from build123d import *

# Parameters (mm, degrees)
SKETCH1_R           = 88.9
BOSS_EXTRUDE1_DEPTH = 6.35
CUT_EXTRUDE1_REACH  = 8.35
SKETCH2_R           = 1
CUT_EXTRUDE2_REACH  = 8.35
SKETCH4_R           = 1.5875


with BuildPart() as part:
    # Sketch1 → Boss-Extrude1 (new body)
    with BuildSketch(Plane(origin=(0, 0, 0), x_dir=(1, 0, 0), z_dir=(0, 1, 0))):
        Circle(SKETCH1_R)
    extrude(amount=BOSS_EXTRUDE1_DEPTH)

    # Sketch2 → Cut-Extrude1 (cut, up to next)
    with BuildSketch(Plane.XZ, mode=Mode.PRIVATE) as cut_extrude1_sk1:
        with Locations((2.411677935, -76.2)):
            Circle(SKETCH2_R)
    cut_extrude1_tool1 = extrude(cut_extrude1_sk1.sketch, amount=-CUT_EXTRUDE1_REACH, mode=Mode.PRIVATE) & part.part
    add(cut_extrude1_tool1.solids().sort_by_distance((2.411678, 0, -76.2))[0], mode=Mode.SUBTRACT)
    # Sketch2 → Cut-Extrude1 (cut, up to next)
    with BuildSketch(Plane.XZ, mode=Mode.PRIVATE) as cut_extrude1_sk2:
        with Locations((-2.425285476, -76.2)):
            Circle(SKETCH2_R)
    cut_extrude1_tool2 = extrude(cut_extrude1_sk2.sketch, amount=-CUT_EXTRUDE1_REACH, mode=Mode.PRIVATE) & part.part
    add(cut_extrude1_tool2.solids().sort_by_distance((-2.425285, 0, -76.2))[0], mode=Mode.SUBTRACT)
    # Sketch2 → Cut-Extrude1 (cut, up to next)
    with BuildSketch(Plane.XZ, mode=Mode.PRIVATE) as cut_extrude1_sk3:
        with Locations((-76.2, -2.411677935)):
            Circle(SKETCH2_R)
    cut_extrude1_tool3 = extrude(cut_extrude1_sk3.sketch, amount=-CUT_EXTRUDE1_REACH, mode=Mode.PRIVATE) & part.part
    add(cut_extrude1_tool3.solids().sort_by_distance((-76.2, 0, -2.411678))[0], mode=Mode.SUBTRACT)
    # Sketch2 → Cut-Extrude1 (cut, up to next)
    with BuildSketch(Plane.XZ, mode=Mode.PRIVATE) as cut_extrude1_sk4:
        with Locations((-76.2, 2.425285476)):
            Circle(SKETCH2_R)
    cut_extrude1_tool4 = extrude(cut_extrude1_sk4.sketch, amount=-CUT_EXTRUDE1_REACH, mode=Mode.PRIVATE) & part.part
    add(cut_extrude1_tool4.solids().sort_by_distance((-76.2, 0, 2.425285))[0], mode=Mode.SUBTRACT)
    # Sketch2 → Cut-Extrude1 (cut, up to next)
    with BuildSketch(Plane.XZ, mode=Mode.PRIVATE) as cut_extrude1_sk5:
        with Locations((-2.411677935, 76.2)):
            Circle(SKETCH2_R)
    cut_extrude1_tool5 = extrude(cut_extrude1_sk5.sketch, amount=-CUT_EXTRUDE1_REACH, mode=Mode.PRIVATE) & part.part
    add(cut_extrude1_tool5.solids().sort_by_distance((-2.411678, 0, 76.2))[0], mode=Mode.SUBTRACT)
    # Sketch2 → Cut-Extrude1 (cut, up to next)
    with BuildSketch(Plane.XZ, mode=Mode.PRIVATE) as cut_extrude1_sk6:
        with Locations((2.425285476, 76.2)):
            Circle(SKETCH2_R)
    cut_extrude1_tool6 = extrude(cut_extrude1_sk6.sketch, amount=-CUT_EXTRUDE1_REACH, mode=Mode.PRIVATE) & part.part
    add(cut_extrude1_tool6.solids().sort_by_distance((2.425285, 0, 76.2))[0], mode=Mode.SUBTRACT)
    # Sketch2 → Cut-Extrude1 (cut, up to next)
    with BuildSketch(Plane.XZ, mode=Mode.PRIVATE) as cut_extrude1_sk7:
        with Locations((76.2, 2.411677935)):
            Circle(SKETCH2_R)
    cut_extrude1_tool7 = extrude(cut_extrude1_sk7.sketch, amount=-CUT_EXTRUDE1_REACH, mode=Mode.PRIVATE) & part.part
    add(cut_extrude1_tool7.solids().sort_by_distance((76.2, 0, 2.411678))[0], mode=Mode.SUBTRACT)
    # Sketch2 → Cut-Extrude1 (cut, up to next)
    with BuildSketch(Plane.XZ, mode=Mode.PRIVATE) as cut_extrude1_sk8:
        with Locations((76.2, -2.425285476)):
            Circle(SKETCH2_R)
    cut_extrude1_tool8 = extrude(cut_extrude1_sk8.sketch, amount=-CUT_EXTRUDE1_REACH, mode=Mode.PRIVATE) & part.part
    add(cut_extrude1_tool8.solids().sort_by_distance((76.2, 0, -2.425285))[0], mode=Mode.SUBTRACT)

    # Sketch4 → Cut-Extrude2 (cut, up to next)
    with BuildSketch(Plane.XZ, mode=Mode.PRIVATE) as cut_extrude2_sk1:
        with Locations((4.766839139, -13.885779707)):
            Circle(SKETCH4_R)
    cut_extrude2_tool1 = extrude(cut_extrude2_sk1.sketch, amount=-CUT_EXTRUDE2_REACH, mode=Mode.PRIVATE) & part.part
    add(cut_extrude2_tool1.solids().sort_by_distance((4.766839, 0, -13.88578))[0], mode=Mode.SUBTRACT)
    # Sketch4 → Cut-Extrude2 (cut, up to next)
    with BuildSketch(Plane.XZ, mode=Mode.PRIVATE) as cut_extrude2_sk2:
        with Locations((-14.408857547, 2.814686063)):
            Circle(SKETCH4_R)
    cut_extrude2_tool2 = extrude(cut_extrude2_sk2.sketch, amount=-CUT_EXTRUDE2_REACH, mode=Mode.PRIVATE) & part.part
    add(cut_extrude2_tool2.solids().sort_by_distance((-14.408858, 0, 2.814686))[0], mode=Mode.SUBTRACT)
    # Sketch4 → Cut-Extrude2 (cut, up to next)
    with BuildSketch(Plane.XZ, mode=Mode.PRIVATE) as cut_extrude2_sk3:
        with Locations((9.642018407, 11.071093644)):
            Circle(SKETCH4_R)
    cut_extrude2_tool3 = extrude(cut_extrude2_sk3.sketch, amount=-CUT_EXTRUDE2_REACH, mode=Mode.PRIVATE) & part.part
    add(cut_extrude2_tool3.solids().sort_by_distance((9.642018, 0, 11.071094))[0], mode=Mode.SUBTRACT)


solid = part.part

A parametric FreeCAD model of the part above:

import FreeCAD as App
import Part
import Sketcher

V = App.Vector
Q = App.Units.Quantity

doc = App.newDocument("Part")
body = doc.addObject("PartDesign::Body", "Body")

# Sketch on XZ plane
sketch1 = body.newObject("Sketcher::SketchObject", "Sketch")
sketch1.AttachmentSupport = (doc.getObject("XZ_Plane"), [""])
sketch1.MapMode = "FlatFace"
sketch1.addGeometry(Part.Circle(V(0, 0, 0), V(0, 0, 1), 89), False)
sketch1.addConstraint(Sketcher.Constraint("Coincident", 0, 3, -1, 1))
sketch1.addConstraint(Sketcher.Constraint("Diameter", 0, Q("7 in")))
pad1 = body.newObject("PartDesign::Pad", "Pad")
pad1.Profile = sketch1
pad1.Length = Q("0.25 in")
pad1.Reversed = True

# Sketch on XZ plane
sketch2 = body.newObject("Sketcher::SketchObject", "Sketch001")
sketch2.AttachmentSupport = (doc.getObject("XZ_Plane"), [""])
sketch2.MapMode = "FlatFace"
sketch2.addGeometry(Part.Circle(V(2.4, -76.2, 0), V(0, 0, 1), 1), False)
sketch2.addConstraint(Sketcher.Constraint("DistanceY", 0, 3, -1, 1, Q("3 in")))
sketch2.addConstraint(Sketcher.Constraint("Diameter", 0, Q("2 mm")))
sketch2.addConstraint(Sketcher.Constraint("DistanceX", -1, 1, 0, 3, Q("2.411678 mm")))
pocket1 = body.newObject("PartDesign::Pocket", "Pocket")
pocket1.Profile = sketch2
pocket1.Type = "UpToFirst"

# Sketch on XZ plane
sketch3 = body.newObject("Sketcher::SketchObject", "Sketch002")
sketch3.AttachmentSupport = (doc.getObject("XZ_Plane"), [""])
sketch3.MapMode = "FlatFace"
sketch3.addGeometry(Part.Circle(V(-2.4, -76.2, 0), V(0, 0, 1), 1), False)
sketch3.addConstraint(Sketcher.Constraint("DistanceY", 0, 3, -1, 1, Q("3 in")))
sketch3.addConstraint(Sketcher.Constraint("Diameter", 0, Q("2 mm")))
sketch3.addConstraint(Sketcher.Constraint("DistanceX", 0, 3, -1, 1, Q("2.425285 mm")))
pocket2 = body.newObject("PartDesign::Pocket", "Pocket001")
pocket2.Profile = sketch3
pocket2.Type = "UpToFirst"

# Sketch on XZ plane
sketch4 = body.newObject("Sketcher::SketchObject", "Sketch003")
sketch4.AttachmentSupport = (doc.getObject("XZ_Plane"), [""])
sketch4.MapMode = "FlatFace"
sketch4.addGeometry(Part.Circle(V(-76.2, -2.4, 0), V(0, 0, 1), 1), False)
sketch4.addConstraint(Sketcher.Constraint("DistanceX", 0, 3, -1, 1, Q("3 in")))
sketch4.addConstraint(Sketcher.Constraint("Diameter", 0, Q("2 mm")))
sketch4.addConstraint(Sketcher.Constraint("DistanceY", 0, 3, -1, 1, Q("2.411678 mm")))
pocket3 = body.newObject("PartDesign::Pocket", "Pocket002")
pocket3.Profile = sketch4
pocket3.Type = "UpToFirst"

# Sketch on XZ plane
sketch5 = body.newObject("Sketcher::SketchObject", "Sketch004")
sketch5.AttachmentSupport = (doc.getObject("XZ_Plane"), [""])
sketch5.MapMode = "FlatFace"
sketch5.addGeometry(Part.Circle(V(-76.2, 2.4, 0), V(0, 0, 1), 1), False)
sketch5.addConstraint(Sketcher.Constraint("DistanceX", 0, 3, -1, 1, Q("3 in")))
sketch5.addConstraint(Sketcher.Constraint("Diameter", 0, Q("2 mm")))
sketch5.addConstraint(Sketcher.Constraint("DistanceY", -1, 1, 0, 3, Q("2.425285 mm")))
pocket4 = body.newObject("PartDesign::Pocket", "Pocket003")
pocket4.Profile = sketch5
pocket4.Type = "UpToFirst"

# Sketch on XZ plane
sketch6 = body.newObject("Sketcher::SketchObject", "Sketch005")
sketch6.AttachmentSupport = (doc.getObject("XZ_Plane"), [""])
sketch6.MapMode = "FlatFace"
sketch6.addGeometry(Part.Circle(V(-2.4, 76.2, 0), V(0, 0, 1), 1), False)
sketch6.addConstraint(Sketcher.Constraint("DistanceY", -1, 1, 0, 3, Q("3 in")))
sketch6.addConstraint(Sketcher.Constraint("Diameter", 0, Q("2 mm")))
sketch6.addConstraint(Sketcher.Constraint("DistanceX", 0, 3, -1, 1, Q("2.411678 mm")))
pocket5 = body.newObject("PartDesign::Pocket", "Pocket004")
pocket5.Profile = sketch6
pocket5.Type = "UpToFirst"

# Sketch on XZ plane
sketch7 = body.newObject("Sketcher::SketchObject", "Sketch006")
sketch7.AttachmentSupport = (doc.getObject("XZ_Plane"), [""])
sketch7.MapMode = "FlatFace"
sketch7.addGeometry(Part.Circle(V(2.4, 76.2, 0), V(0, 0, 1), 1), False)
sketch7.addConstraint(Sketcher.Constraint("DistanceY", -1, 1, 0, 3, Q("3 in")))
sketch7.addConstraint(Sketcher.Constraint("Diameter", 0, Q("2 mm")))
sketch7.addConstraint(Sketcher.Constraint("DistanceX", -1, 1, 0, 3, Q("2.425285 mm")))
pocket6 = body.newObject("PartDesign::Pocket", "Pocket005")
pocket6.Profile = sketch7
pocket6.Type = "UpToFirst"

# Sketch on XZ plane
sketch8 = body.newObject("Sketcher::SketchObject", "Sketch007")
sketch8.AttachmentSupport = (doc.getObject("XZ_Plane"), [""])
sketch8.MapMode = "FlatFace"
sketch8.addGeometry(Part.Circle(V(76.2, 2.4, 0), V(0, 0, 1), 1), False)
sketch8.addConstraint(Sketcher.Constraint("DistanceX", -1, 1, 0, 3, Q("3 in")))
sketch8.addConstraint(Sketcher.Constraint("Diameter", 0, Q("2 mm")))
sketch8.addConstraint(Sketcher.Constraint("DistanceY", -1, 1, 0, 3, Q("2.411678 mm")))
pocket7 = body.newObject("PartDesign::Pocket", "Pocket006")
pocket7.Profile = sketch8
pocket7.Type = "UpToFirst"

# Sketch on XZ plane
sketch9 = body.newObject("Sketcher::SketchObject", "Sketch008")
sketch9.AttachmentSupport = (doc.getObject("XZ_Plane"), [""])
sketch9.MapMode = "FlatFace"
sketch9.addGeometry(Part.Circle(V(76.2, -2.4, 0), V(0, 0, 1), 1), False)
sketch9.addConstraint(Sketcher.Constraint("DistanceX", -1, 1, 0, 3, Q("3 in")))
sketch9.addConstraint(Sketcher.Constraint("Diameter", 0, Q("2 mm")))
sketch9.addConstraint(Sketcher.Constraint("DistanceY", 0, 3, -1, 1, Q("2.425285 mm")))
pocket8 = body.newObject("PartDesign::Pocket", "Pocket007")
pocket8.Profile = sketch9
pocket8.Type = "UpToFirst"

# Sketch on XZ plane
sketch10 = body.newObject("Sketcher::SketchObject", "Sketch009")
sketch10.AttachmentSupport = (doc.getObject("XZ_Plane"), [""])
sketch10.MapMode = "FlatFace"
sketch10.addGeometry(Part.Circle(V(4.8, -13.9, 0), V(0, 0, 1), 1.6), False)
sketch10.addConstraint(Sketcher.Constraint("Diameter", 0, Q("0.125 in")))
sketch10.addConstraint(Sketcher.Constraint("DistanceX", -1, 1, 0, 3, Q("4.766839 mm")))
sketch10.addConstraint(Sketcher.Constraint("DistanceY", 0, 3, -1, 1, Q("13.88578 mm")))
pocket9 = body.newObject("PartDesign::Pocket", "Pocket008")
pocket9.Profile = sketch10
pocket9.Type = "UpToFirst"

# Sketch on XZ plane
sketch11 = body.newObject("Sketcher::SketchObject", "Sketch010")
sketch11.AttachmentSupport = (doc.getObject("XZ_Plane"), [""])
sketch11.MapMode = "FlatFace"
sketch11.addGeometry(Part.Circle(V(-14.4, 2.8, 0), V(0, 0, 1), 1.6), False)
sketch11.addConstraint(Sketcher.Constraint("Diameter", 0, Q("0.125 in")))
sketch11.addConstraint(Sketcher.Constraint("DistanceX", 0, 3, -1, 1, Q("14.408858 mm")))
sketch11.addConstraint(Sketcher.Constraint("DistanceY", -1, 1, 0, 3, Q("2.814686 mm")))
pocket10 = body.newObject("PartDesign::Pocket", "Pocket009")
pocket10.Profile = sketch11
pocket10.Type = "UpToFirst"

# Sketch on XZ plane
sketch12 = body.newObject("Sketcher::SketchObject", "Sketch011")
sketch12.AttachmentSupport = (doc.getObject("XZ_Plane"), [""])
sketch12.MapMode = "FlatFace"
sketch12.addGeometry(Part.Circle(V(9.6, 11.1, 0), V(0, 0, 1), 1.6), False)
sketch12.addConstraint(Sketcher.Constraint("Diameter", 0, Q("0.125 in")))
sketch12.addConstraint(Sketcher.Constraint("DistanceX", -1, 1, 0, 3, Q("9.642018 mm")))
sketch12.addConstraint(Sketcher.Constraint("DistanceY", -1, 1, 0, 3, Q("11.071094 mm")))
pocket11 = body.newObject("PartDesign::Pocket", "Pocket010")
pocket11.Profile = sketch12
pocket11.Type = "UpToFirst"

doc.recompute()
